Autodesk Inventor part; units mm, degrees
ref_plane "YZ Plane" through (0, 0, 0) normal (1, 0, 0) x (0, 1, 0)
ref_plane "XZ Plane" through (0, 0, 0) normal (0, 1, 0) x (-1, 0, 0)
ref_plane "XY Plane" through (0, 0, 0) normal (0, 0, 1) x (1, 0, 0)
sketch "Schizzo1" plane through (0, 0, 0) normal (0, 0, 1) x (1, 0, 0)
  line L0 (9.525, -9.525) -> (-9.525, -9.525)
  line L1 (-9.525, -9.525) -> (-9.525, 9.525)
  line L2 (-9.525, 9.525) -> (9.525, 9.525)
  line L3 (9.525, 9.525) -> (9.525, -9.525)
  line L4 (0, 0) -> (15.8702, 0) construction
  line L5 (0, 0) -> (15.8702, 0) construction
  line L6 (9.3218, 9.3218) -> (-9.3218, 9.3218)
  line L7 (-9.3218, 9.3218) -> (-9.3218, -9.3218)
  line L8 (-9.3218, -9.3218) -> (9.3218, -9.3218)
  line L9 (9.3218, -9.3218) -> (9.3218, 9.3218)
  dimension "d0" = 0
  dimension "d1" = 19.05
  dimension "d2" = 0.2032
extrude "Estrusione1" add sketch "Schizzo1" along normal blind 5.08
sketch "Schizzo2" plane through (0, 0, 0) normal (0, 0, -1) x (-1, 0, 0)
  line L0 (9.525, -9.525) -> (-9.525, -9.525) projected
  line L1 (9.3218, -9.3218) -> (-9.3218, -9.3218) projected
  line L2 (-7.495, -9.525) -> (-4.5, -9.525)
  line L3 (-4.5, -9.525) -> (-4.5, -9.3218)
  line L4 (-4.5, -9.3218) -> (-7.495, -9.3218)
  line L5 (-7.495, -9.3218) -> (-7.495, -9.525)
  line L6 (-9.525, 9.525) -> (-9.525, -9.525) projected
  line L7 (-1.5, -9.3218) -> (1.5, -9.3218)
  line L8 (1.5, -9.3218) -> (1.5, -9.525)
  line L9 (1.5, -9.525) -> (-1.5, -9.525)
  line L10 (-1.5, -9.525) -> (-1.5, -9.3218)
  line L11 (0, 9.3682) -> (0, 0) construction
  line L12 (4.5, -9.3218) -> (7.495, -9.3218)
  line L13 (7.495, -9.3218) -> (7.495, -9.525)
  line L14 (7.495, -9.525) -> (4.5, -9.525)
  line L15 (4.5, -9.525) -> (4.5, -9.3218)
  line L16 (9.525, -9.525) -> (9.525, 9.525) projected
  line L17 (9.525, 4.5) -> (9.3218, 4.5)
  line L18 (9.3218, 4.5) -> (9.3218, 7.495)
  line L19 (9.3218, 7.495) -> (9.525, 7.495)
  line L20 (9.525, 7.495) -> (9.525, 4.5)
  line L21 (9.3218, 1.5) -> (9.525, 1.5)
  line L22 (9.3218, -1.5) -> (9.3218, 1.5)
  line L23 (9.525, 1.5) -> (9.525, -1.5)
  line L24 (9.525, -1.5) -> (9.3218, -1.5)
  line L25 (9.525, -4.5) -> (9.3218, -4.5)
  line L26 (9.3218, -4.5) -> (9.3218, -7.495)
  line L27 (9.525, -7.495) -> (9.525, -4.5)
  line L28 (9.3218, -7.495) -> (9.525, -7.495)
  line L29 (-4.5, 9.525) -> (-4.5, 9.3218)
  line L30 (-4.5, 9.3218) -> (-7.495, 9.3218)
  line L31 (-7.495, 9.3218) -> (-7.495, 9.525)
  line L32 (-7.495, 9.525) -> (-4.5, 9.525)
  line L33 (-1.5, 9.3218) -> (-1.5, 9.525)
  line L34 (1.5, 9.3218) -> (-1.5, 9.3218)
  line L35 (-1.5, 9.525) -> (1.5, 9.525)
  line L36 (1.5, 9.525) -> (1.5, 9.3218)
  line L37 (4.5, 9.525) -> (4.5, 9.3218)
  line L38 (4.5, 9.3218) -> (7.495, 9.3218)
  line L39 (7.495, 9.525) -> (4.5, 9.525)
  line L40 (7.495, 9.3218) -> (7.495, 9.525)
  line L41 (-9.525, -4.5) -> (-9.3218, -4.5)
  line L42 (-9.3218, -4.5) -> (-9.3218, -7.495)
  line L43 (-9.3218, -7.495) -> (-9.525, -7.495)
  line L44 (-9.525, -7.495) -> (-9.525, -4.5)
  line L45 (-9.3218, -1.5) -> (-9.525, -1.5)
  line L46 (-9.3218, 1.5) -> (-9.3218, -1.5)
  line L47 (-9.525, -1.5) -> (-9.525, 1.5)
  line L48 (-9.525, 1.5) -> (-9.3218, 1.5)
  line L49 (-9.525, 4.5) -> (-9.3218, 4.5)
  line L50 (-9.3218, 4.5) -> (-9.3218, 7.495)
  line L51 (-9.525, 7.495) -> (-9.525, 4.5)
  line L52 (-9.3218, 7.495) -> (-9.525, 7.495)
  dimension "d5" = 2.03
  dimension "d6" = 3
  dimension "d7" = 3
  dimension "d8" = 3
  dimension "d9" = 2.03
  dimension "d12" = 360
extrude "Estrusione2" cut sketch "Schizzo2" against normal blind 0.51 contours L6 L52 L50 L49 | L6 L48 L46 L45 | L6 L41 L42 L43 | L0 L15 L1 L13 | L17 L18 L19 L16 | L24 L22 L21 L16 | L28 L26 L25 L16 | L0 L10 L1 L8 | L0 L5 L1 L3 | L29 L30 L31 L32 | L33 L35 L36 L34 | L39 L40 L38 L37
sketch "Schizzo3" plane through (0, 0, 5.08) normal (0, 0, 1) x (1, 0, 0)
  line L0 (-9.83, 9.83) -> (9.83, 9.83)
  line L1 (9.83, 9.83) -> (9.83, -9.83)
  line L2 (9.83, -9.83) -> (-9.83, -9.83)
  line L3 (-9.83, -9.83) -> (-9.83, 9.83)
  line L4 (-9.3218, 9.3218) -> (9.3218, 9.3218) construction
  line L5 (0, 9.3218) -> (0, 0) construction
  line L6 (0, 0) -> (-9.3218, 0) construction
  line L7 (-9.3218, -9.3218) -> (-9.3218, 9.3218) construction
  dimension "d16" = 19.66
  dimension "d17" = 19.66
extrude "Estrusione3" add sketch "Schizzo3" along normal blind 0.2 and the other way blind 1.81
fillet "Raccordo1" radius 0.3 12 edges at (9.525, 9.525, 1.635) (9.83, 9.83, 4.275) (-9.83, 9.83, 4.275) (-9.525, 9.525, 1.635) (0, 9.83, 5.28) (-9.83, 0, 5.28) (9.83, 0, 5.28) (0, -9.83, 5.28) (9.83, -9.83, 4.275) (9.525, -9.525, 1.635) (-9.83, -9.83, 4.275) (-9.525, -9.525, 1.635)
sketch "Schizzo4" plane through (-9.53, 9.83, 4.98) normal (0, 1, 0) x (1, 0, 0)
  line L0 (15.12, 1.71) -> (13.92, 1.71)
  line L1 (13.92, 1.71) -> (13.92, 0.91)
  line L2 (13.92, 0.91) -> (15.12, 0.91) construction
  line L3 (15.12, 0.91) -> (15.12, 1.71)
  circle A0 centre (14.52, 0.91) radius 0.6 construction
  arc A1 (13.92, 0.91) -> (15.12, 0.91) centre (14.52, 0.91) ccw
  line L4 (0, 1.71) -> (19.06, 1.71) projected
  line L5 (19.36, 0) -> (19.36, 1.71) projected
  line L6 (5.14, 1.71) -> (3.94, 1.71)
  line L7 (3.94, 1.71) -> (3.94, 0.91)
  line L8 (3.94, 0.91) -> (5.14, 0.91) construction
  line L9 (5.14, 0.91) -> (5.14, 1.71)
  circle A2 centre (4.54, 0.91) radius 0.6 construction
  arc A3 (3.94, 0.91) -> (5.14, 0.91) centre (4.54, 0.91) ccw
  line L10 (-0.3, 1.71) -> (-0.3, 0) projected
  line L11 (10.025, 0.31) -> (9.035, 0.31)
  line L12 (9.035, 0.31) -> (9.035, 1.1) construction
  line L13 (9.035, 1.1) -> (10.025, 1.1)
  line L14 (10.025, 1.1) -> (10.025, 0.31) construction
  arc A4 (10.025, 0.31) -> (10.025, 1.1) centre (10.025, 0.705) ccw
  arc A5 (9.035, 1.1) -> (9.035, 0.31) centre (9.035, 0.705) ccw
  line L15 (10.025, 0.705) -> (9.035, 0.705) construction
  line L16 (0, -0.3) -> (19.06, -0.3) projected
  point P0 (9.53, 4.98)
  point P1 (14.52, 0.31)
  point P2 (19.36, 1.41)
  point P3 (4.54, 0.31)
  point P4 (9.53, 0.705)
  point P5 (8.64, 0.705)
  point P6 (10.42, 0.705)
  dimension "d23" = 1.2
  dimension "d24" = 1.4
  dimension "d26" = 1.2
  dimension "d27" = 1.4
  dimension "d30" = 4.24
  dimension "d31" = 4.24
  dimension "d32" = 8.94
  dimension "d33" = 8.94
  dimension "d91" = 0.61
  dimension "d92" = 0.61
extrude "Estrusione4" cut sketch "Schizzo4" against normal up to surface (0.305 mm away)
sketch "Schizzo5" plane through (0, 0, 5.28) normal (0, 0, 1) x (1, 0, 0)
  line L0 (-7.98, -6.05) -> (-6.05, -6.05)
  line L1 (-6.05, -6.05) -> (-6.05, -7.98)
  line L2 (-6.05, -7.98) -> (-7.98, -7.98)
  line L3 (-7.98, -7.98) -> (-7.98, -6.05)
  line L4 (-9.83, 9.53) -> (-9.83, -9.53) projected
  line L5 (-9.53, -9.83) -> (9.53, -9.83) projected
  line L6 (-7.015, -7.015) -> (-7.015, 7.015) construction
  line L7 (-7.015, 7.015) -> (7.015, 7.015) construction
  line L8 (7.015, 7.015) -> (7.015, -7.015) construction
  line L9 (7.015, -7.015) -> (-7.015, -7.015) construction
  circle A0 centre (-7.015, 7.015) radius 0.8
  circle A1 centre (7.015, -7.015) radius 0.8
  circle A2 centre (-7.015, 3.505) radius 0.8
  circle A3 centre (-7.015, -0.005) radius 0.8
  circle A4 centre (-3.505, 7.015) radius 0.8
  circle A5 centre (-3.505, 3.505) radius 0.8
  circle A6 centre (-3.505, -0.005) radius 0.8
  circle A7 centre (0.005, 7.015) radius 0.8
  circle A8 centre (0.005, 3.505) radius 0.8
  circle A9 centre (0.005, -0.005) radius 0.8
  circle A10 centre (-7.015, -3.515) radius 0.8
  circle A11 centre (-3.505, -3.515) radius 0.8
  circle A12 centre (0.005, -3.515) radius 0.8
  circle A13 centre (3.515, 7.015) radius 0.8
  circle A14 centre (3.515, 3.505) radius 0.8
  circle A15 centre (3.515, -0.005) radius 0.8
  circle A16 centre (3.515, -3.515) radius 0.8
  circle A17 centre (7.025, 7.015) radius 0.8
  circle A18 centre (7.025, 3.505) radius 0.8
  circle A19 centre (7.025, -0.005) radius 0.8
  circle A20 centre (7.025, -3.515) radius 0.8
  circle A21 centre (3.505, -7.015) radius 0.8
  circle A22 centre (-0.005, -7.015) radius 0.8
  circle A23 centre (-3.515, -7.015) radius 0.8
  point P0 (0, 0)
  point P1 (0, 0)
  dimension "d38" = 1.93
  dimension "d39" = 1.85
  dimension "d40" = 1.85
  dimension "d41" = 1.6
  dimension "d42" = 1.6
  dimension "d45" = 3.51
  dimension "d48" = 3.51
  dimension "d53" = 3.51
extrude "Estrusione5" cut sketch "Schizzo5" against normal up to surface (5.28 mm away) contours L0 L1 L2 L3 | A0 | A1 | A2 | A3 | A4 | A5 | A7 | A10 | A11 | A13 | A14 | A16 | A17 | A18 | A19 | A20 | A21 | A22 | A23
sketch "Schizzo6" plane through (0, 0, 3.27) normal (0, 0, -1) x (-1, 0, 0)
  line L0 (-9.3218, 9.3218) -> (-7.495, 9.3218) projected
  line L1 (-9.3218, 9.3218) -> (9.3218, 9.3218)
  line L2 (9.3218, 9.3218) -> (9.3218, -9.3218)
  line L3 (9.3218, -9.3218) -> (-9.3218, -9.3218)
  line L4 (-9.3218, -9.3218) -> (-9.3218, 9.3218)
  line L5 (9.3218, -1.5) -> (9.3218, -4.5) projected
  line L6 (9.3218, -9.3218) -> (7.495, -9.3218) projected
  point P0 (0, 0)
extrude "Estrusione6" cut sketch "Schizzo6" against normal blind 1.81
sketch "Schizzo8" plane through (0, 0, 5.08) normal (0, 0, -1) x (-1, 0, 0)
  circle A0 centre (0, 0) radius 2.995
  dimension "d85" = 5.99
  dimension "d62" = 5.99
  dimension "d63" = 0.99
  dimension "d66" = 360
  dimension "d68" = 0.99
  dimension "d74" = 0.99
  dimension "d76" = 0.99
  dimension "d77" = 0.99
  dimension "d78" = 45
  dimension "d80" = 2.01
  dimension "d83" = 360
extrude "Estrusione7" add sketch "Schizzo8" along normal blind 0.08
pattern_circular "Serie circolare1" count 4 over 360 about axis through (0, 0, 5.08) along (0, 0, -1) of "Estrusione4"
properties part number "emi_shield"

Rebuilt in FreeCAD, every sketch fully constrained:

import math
import FreeCAD as App
import Part
import Sketcher

V = App.Vector
Q = App.Units.Quantity


def edges_at(feature, points):
    """Names of the edges that pass closest to the given points."""
    edges = feature.Shape.Edges
    near = lambda p: min(range(len(edges)), key=lambda i: edges[i].distToShape(Part.Vertex(*p))[0])
    return sorted({f"Edge{near(p) + 1}" for p in points})


def add_polygon(sketch, points):
    """Adds a closed chain of lines whose ends are joined by coincident constraints."""
    first, n = sketch.GeometryCount, len(points)
    for a, b in zip(points, points[1:] + points[:1]):
        sketch.addGeometry(Part.LineSegment(App.Vector(*a, 0), App.Vector(*b, 0)), False)
    for i in range(n):
        sketch.addConstraint(Sketcher.Constraint("Coincident", first + i, 2, first + (i + 1) % n, 1))

doc = App.newDocument("Part")
body = doc.addObject("PartDesign::Body", "Body")

sketch1 = body.newObject("Sketcher::SketchObject", "Sketch")
sketch1.AttachmentSupport = (doc.getObject("XY_Plane"), [""])
sketch1.MapMode = "FlatFace"
add_polygon(sketch1, [(-10, -10), (10, -10), (10, 10), (-10, 10)])
add_polygon(sketch1, [(-9, 9), (9, 9), (9, -9), (-9, -9)])
sketch1.addConstraint(Sketcher.Constraint("Horizontal", 0))
sketch1.addConstraint(Sketcher.Constraint("Vertical", 1))
sketch1.addConstraint(Sketcher.Constraint("Horizontal", 2))
sketch1.addConstraint(Sketcher.Constraint("Vertical", 3))
sketch1.addConstraint(Sketcher.Constraint("Horizontal", 4))
sketch1.addConstraint(Sketcher.Constraint("Vertical", 5))
sketch1.addConstraint(Sketcher.Constraint("Horizontal", 6))
sketch1.addConstraint(Sketcher.Constraint("Vertical", 7))
sketch1.addConstraint(Sketcher.Constraint("Symmetric", 0, 2, 2, 2, -1, 1))
sketch1.addConstraint(Sketcher.Constraint("Symmetric", 4, 2, 6, 2, -1, 1))
sketch1.addConstraint(Sketcher.Constraint("Equal", 2, 1))
sketch1.addConstraint(Sketcher.Constraint("Equal", 6, 5))
sketch1.addConstraint(Sketcher.Constraint("DistanceX", 0, 1, 0, 2, Q("0.75 in")))
sketch1.addConstraint(Sketcher.Constraint("DistanceX", 4, 2, 1, 2, Q("0.008 in")))
pad1 = body.newObject("PartDesign::Pad", "Pad")
pad1.Profile = sketch1
pad1.Length = Q("0.2 in")

sketch2 = body.newObject("Sketcher::SketchObject", "Sketch001")
sketch2.AttachmentSupport = (doc.getObject("XY_Plane"), [""])
sketch2.MapMode = "FlatFace"
add_polygon(sketch2, [(9.53, 7.5), (9.53, 4.5), (9.32, 4.5), (9.32, 7.5)])
add_polygon(sketch2, [(9.53, 1.5), (9.53, -1.5), (9.32, -1.5), (9.32, 1.5)])
add_polygon(sketch2, [(9.53, -4.5), (9.53, -7.5), (9.32, -7.5), (9.32, -4.5)])
add_polygon(sketch2, [(-4.5, -9.53), (-7.5, -9.53), (-7.5, -9.32), (-4.5, -9.32)])
add_polygon(sketch2, [(-9.32, 4.5), (-9.53, 4.5), (-9.53, 7.5), (-9.32, 7.5)])
add_polygon(sketch2, [(-9.32, -1.5), (-9.53, -1.5), (-9.53, 1.5), (-9.32, 1.5)])
add_polygon(sketch2, [(-9.32, -7.5), (-9.53, -7.5), (-9.53, -4.5), (-9.32, -4.5)])
add_polygon(sketch2, [(1.5, -9.53), (-1.5, -9.53), (-1.5, -9.32), (1.5, -9.32)])
add_polygon(sketch2, [(7.5, -9.53), (4.5, -9.53), (4.5, -9.32), (7.5, -9.32)])
add_polygon(sketch2, [(4.5, 9.32), (4.5, 9.53), (7.5, 9.53), (7.5, 9.32)])
add_polygon(sketch2, [(1.5, 9.53), (1.5, 9.32), (-1.5, 9.32), (-1.5, 9.53)])
add_polygon(sketch2, [(-7.5, 9.53), (-4.5, 9.53), (-4.5, 9.32), (-7.5, 9.32)])
sketch2.addConstraint(Sketcher.Constraint("Vertical", 0))
sketch2.addConstraint(Sketcher.Constraint("Horizontal", 1))
sketch2.addConstraint(Sketcher.Constraint("Vertical", 2))
sketch2.addConstraint(Sketcher.Constraint("Horizontal", 3))
sketch2.addConstraint(Sketcher.Constraint("Vertical", 4))
sketch2.addConstraint(Sketcher.Constraint("Horizontal", 5))
sketch2.addConstraint(Sketcher.Constraint("Vertical", 6))
sketch2.addConstraint(Sketcher.Constraint("Horizontal", 7))
sketch2.addConstraint(Sketcher.Constraint("Vertical", 8))
sketch2.addConstraint(Sketcher.Constraint("Horizontal", 9))
sketch2.addConstraint(Sketcher.Constraint("Vertical", 10))
sketch2.addConstraint(Sketcher.Constraint("Horizontal", 11))
sketch2.addConstraint(Sketcher.Constraint("Horizontal", 12))
sketch2.addConstraint(Sketcher.Constraint("Vertical", 13))
sketch2.addConstraint(Sketcher.Constraint("Horizontal", 14))
sketch2.addConstraint(Sketcher.Constraint("Vertical", 15))
sketch2.addConstraint(Sketcher.Constraint("Horizontal", 16))
sketch2.addConstraint(Sketcher.Constraint("Vertical", 17))
sketch2.addConstraint(Sketcher.Constraint("Horizontal", 18))
sketch2.addConstraint(Sketcher.Constraint("Vertical", 19))
sketch2.addConstraint(Sketcher.Constraint("Horizontal", 20))
sketch2.addConstraint(Sketcher.Constraint("Vertical", 21))
sketch2.addConstraint(Sketcher.Constraint("Horizontal", 22))
sketch2.addConstraint(Sketcher.Constraint("Vertical", 23))
sketch2.addConstraint(Sketcher.Constraint("Horizontal", 24))
sketch2.addConstraint(Sketcher.Constraint("Vertical", 25))
sketch2.addConstraint(Sketcher.Constraint("Horizontal", 26))
sketch2.addConstraint(Sketcher.Constraint("Vertical", 27))
sketch2.addConstraint(Sketcher.Constraint("Horizontal", 28))
sketch2.addConstraint(Sketcher.Constraint("Vertical", 29))
sketch2.addConstraint(Sketcher.Constraint("Horizontal", 30))
sketch2.addConstraint(Sketcher.Constraint("Vertical", 31))
sketch2.addConstraint(Sketcher.Constraint("Horizontal", 32))
sketch2.addConstraint(Sketcher.Constraint("Vertical", 33))
sketch2.addConstraint(Sketcher.Constraint("Horizontal", 34))
sketch2.addConstraint(Sketcher.Constraint("Vertical", 35))
sketch2.addConstraint(Sketcher.Constraint("Vertical", 36))
sketch2.addConstraint(Sketcher.Constraint("Horizontal", 37))
sketch2.addConstraint(Sketcher.Constraint("Vertical", 38))
sketch2.addConstraint(Sketcher.Constraint("Horizontal", 39))
sketch2.addConstraint(Sketcher.Constraint("Vertical", 40))
sketch2.addConstraint(Sketcher.Constraint("Horizontal", 41))
sketch2.addConstraint(Sketcher.Constraint("Vertical", 42))
sketch2.addConstraint(Sketcher.Constraint("Horizontal", 43))
sketch2.addConstraint(Sketcher.Constraint("Horizontal", 44))
sketch2.addConstraint(Sketcher.Constraint("Vertical", 45))
sketch2.addConstraint(Sketcher.Constraint("Horizontal", 46))
sketch2.addConstraint(Sketcher.Constraint("Vertical", 47))
sketch2.addConstraint(Sketcher.Constraint("Symmetric", 11, 2, 16, 2, -1, 1))
sketch2.addConstraint(Sketcher.Constraint("Symmetric", 9, 2, 18, 2, -1, 1))
sketch2.addConstraint(Sketcher.Constraint("Symmetric", 7, 2, 20, 2, -1, 1))
sketch2.addConstraint(Sketcher.Constraint("Symmetric", 5, 2, 22, 2, -1, 1))
sketch2.addConstraint(Sketcher.Constraint("Symmetric", 3, 2, 24, 2, -1, 1))
sketch2.addConstraint(Sketcher.Constraint("Symmetric", 1, 2, 26, 2, -1, 1))
sketch2.addConstraint(Sketcher.Constraint("Symmetric", 15, 2, 36, 2, -1, 1))
sketch2.addConstraint(Sketcher.Constraint("Symmetric", 13, 2, 38, 2, -1, 1))
sketch2.addConstraint(Sketcher.Constraint("Symmetric", 29, 2, 40, 2, -1, 1))
sketch2.addConstraint(Sketcher.Constraint("Symmetric", 31, 2, 42, 2, -1, 1))
sketch2.addConstraint(Sketcher.Constraint("Symmetric", 32, 2, 44, 2, -1, 1))
sketch2.addConstraint(Sketcher.Constraint("Symmetric", 34, 2, 46, 2, -1, 1))
sketch2.addConstraint(Sketcher.Constraint("Symmetric", 0, 2, 16, 2, -2))
sketch2.addConstraint(Sketcher.Constraint("Symmetric", 2, 2, 18, 2, -2))
sketch2.addConstraint(Sketcher.Constraint("Symmetric", 15, 2, 32, 2, -2))
sketch2.addConstraint(Sketcher.Constraint("Symmetric", 13, 2, 34, 2, -2))
sketch2.addConstraint(Sketcher.Constraint("Horizontal", 5, 2, 20, 2))
sketch2.addConstraint(Sketcher.Constraint("Horizontal", 15, 2, 28, 2))
sketch2.addConstraint(Sketcher.Constraint("Horizontal", 14, 2, 29, 2))
sketch2.addConstraint(Sketcher.Constraint("Vertical", 3, 2, 4, 2))
sketch2.addConstraint(Sketcher.Constraint("Vertical", 2, 2, 5, 2))
sketch2.addConstraint(Sketcher.Constraint("Vertical", 31, 2, 40, 2))
sketch2.addConstraint(Sketcher.Constraint("Equal", 46, 0))
sketch2.addConstraint(Sketcher.Constraint("Equal", 43, 4))
sketch2.addConstraint(Sketcher.Constraint("Equal", 26, 13))
sketch2.addConstraint(Sketcher.Constraint("DistanceX", 28, 2, 28, 1, Q("0.1181 in")))
sketch2.addConstraint(Sketcher.Constraint("DistanceY", 6, 2, 1, 2, Q("0.1181 in")))
sketch2.addConstraint(Sketcher.Constraint("DistanceX", 15, 2, 28, 2, Q("0.1181 in")))
sketch2.addConstraint(Sketcher.Constraint("DistanceX", 1, 2, 1, 1, Q("0.008 in")))
sketch2.addConstraint(Sketcher.Constraint("DistanceY", 12, 2, 9, 2, 2.03))
sketch2.addConstraint(Sketcher.Constraint("DistanceX", 16, 2, 13, 2, 2.03))
sketch2.addConstraint(Sketcher.Constraint("DistanceX", -1, 1, 0, 2, Q("0.375 in")))
pocket1 = body.newObject("PartDesign::Pocket", "Pocket")
pocket1.Profile = sketch2
pocket1.Length = 0.51
pocket1.Reversed = True

sketch3 = body.newObject("Sketcher::SketchObject", "Sketch002")
sketch3.AttachmentSupport = (doc.getObject("XY_Plane"), [""])
sketch3.MapMode = "FlatFace"
sketch3.AttachmentOffset = App.Placement(V(0, 0, 0.2 * 25.4), App.Rotation())
add_polygon(sketch3, [(10, 10), (-10, 10), (-10, -10), (10, -10)])
sketch3.addConstraint(Sketcher.Constraint("Horizontal", 0))
sketch3.addConstraint(Sketcher.Constraint("Vertical", 1))
sketch3.addConstraint(Sketcher.Constraint("Horizontal", 2))
sketch3.addConstraint(Sketcher.Constraint("Vertical", 3))
sketch3.addConstraint(Sketcher.Constraint("Symmetric", 0, 2, 2, 2, -1, 1))
sketch3.addConstraint(Sketcher.Constraint("Equal", 2, 1))
sketch3.addConstraint(Sketcher.Constraint("DistanceX", 0, 2, 0, 1, 19.66))
pad2 = body.newObject("PartDesign::Pad", "Pad001")
pad2.Profile = sketch3
pad2.Type = "TwoLengths"
pad2.Length = 0.2
pad2.Length2 = 1.81
doc.recompute()

fillet = body.newObject("PartDesign::Fillet", "Fillet")
fillet.Base = (pad2, edges_at(pad2, [
    (9.525, 9.525, 1.635),
    (9.83, 9.83, 4.275),
    (-9.83, 9.83, 4.275),
    (-9.525, 9.525, 1.635),
    (0, 9.83, 5.28),
    (-9.83, 0, 5.28),
    (9.83, 0, 5.28),
    (0, -9.83, 5.28),
    (9.83, -9.83, 4.275),
    (9.525, -9.525, 1.635),
    (-9.83, -9.83, 4.275),
    (-9.525, -9.525, 1.635),
]))
fillet.Radius = Q("0.011811 in")

sketch4 = body.newObject("Sketcher::SketchObject", "Sketch003")
sketch4.AttachmentSupport = (doc.getObject("XZ_Plane"), [""])
sketch4.MapMode = "FlatFace"
sketch4.AttachmentOffset = App.Placement(V(0, 0, -0.3870079 * 25.4), App.Rotation())
sketch4.addGeometry(Part.LineSegment(V(5.59, 4.07, 0), V(5.59, 3.27, 0)), False)
sketch4.addGeometry(Part.LineSegment(V(5.59, 3.27, 0), V(4.39, 3.27, 0)), False)
sketch4.addGeometry(Part.LineSegment(V(4.39, 3.27, 0), V(4.39, 4.07, 0)), False)
sketch4.addGeometry(Part.ArcOfCircle(Part.Circle(V(4.99, 4.07, 0), V(0, 0, 1), 0.6), math.radians(0), math.radians(180)), False)
sketch4.addGeometry(Part.LineSegment(V(-4.39, 4.07, 0), V(-4.39, 3.27, 0)), False)
sketch4.addGeometry(Part.LineSegment(V(-4.39, 3.27, 0), V(-5.59, 3.27, 0)), False)
sketch4.addGeometry(Part.LineSegment(V(-5.59, 3.27, 0), V(-5.59, 4.07, 0)), False)
sketch4.addGeometry(Part.ArcOfCircle(Part.Circle(V(-4.99, 4.07, 0), V(0, 0, 1), 0.6), math.radians(0), math.radians(180)), False)
sketch4.addGeometry(Part.LineSegment(V(-0.49, 4.67, 0), V(0.49, 4.67, 0)), False)
sketch4.addGeometry(Part.ArcOfCircle(Part.Circle(V(0.49, 4.28, 0), V(0, 0, 1), 0.39), math.radians(-90), math.radians(90)), False)
sketch4.addGeometry(Part.LineSegment(V(0.49, 3.88, 0), V(-0.49, 3.88, 0)), False)
sketch4.addGeometry(Part.ArcOfCircle(Part.Circle(V(-0.49, 4.28, 0), V(0, 0, 1), 0.4), math.radians(90), math.radians(270)), False)
sketch4.addConstraint(Sketcher.Constraint("Coincident", 0, 2, 1, 1))
sketch4.addConstraint(Sketcher.Constraint("Coincident", 1, 2, 2, 1))
sketch4.addConstraint(Sketcher.Constraint("Tangent", 2, 2, 3, 2))
sketch4.addConstraint(Sketcher.Constraint("Tangent", 3, 1, 0, 1))
sketch4.addConstraint(Sketcher.Constraint("Coincident", 4, 2, 5, 1))
sketch4.addConstraint(Sketcher.Constraint("Coincident", 5, 2, 6, 1))
sketch4.addConstraint(Sketcher.Constraint("Tangent", 6, 2, 7, 2))
sketch4.addConstraint(Sketcher.Constraint("Tangent", 7, 1, 4, 1))
sketch4.addConstraint(Sketcher.Constraint("Tangent", 8, 2, 9, 2))
sketch4.addConstraint(Sketcher.Constraint("Tangent", 9, 1, 10, 1))
sketch4.addConstraint(Sketcher.Constraint("Tangent", 10, 2, 11, 2))
sketch4.addConstraint(Sketcher.Constraint("Tangent", 11, 1, 8, 1))
sketch4.addConstraint(Sketcher.Constraint("Vertical", 0))
sketch4.addConstraint(Sketcher.Constraint("Horizontal", 1))
sketch4.addConstraint(Sketcher.Constraint("Vertical", 2))
sketch4.addConstraint(Sketcher.Constraint("Vertical", 4))
sketch4.addConstraint(Sketcher.Constraint("Horizontal", 5))
sketch4.addConstraint(Sketcher.Constraint("Vertical", 6))
sketch4.addConstraint(Sketcher.Constraint("Horizontal", 8))
sketch4.addConstraint(Sketcher.Constraint("Horizontal", 10))
sketch4.addConstraint(Sketcher.Constraint("Equal", 3, 7))
sketch4.addConstraint(Sketcher.Constraint("Symmetric", 3, 3, 7, 3, -2))
sketch4.addConstraint(Sketcher.Constraint("Horizontal", 1, 2, 4, 2))
sketch4.addConstraint(Sketcher.Constraint("Radius", 3, 0.6))
sketch4.addConstraint(Sketcher.Constraint("Radius", 9, 0.395))
sketch4.addConstraint(Sketcher.Constraint("DistanceY", 1, 2, 8, 2, 1.4))
sketch4.addConstraint(Sketcher.Constraint("DistanceY", 0, 2, 0, 1, Q("0.0315 in")))
sketch4.addConstraint(Sketcher.Constraint("DistanceX", 8, 1, 8, 2, 0.99))
sketch4.addConstraint(Sketcher.Constraint("DistanceX", -1, 1, 9, 3, Q("0.0195 in")))
sketch4.addConstraint(Sketcher.Constraint("DistanceY", -1, 1, 9, 3, Q("0.1683 in")))
sketch4.addConstraint(Sketcher.Constraint("DistanceX", 9, 3, 0, 2, Q("0.2006 in")))
pocket2 = body.newObject("PartDesign::Pocket", "Pocket001")
pocket2.Profile = sketch4
pocket2.Length = Q("0.0120079 in")
pocket2.Reversed = True

sketch5 = body.newObject("Sketcher::SketchObject", "Sketch004")
sketch5.AttachmentSupport = (doc.getObject("XY_Plane"), [""])
sketch5.MapMode = "FlatFace"
sketch5.AttachmentOffset = App.Placement(V(0, 0, 5.28), App.Rotation())
add_polygon(sketch5, [(-6, -6), (-8, -6), (-8, -8), (-6, -8)])
sketch5.addGeometry(Part.Circle(V(-7, 7, 0), V(0, 0, 1), 0.8), False)
sketch5.addGeometry(Part.Circle(V(7, -7, 0), V(0, 0, 1), 0.8), False)
sketch5.addGeometry(Part.Circle(V(-7, 3.5, 0), V(0, 0, 1), 0.8), False)
sketch5.addGeometry(Part.Circle(V(-7, 0, 0), V(0, 0, 1), 0.8), False)
sketch5.addGeometry(Part.Circle(V(-3.5, 7, 0), V(0, 0, 1), 0.8), False)
sketch5.addGeometry(Part.Circle(V(-3.5, 3.5, 0), V(0, 0, 1), 0.8), False)
sketch5.addGeometry(Part.Circle(V(0, 7, 0), V(0, 0, 1), 0.8), False)
sketch5.addGeometry(Part.Circle(V(-7, -3.5, 0), V(0, 0, 1), 0.8), False)
sketch5.addGeometry(Part.Circle(V(-3.5, -3.5, 0), V(0, 0, 1), 0.8), False)
sketch5.addGeometry(Part.Circle(V(3.5, 7, 0), V(0, 0, 1), 0.8), False)
sketch5.addGeometry(Part.Circle(V(3.5, 3.5, 0), V(0, 0, 1), 0.8), False)
sketch5.addGeometry(Part.Circle(V(3.5, -3.5, 0), V(0, 0, 1), 0.8), False)
sketch5.addGeometry(Part.Circle(V(7, 7, 0), V(0, 0, 1), 0.8), False)
sketch5.addGeometry(Part.Circle(V(7, 3.5, 0), V(0, 0, 1), 0.8), False)
sketch5.addGeometry(Part.Circle(V(7, 0, 0), V(0, 0, 1), 0.8), False)
sketch5.addGeometry(Part.Circle(V(7, -3.5, 0), V(0, 0, 1), 0.8), False)
sketch5.addGeometry(Part.Circle(V(3.5, -7, 0), V(0, 0, 1), 0.8), False)
sketch5.addGeometry(Part.Circle(V(0, -7, 0), V(0, 0, 1), 0.8), False)
sketch5.addGeometry(Part.Circle(V(-3.5, -7, 0), V(0, 0, 1), 0.8), False)
sketch5.addConstraint(Sketcher.Constraint("Horizontal", 0))
sketch5.addConstraint(Sketcher.Constraint("Vertical", 1))
sketch5.addConstraint(Sketcher.Constraint("Horizontal", 2))
sketch5.addConstraint(Sketcher.Constraint("Vertical", 3))
sketch5.addConstraint(Sketcher.Constraint("Equal", 4, 5))
sketch5.addConstraint(Sketcher.Constraint("Equal", 5, 6))
sketch5.addConstraint(Sketcher.Constraint("Equal", 6, 7))
sketch5.addConstraint(Sketcher.Constraint("Equal", 7, 8))
sketch5.addConstraint(Sketcher.Constraint("Equal", 8, 9))
sketch5.addConstraint(Sketcher.Constraint("Equal", 9, 10))
sketch5.addConstraint(Sketcher.Constraint("Equal", 10, 11))
sketch5.addConstraint(Sketcher.Constraint("Equal", 11, 12))
sketch5.addConstraint(Sketcher.Constraint("Equal", 12, 13))
sketch5.addConstraint(Sketcher.Constraint("Equal", 13, 14))
sketch5.addConstraint(Sketcher.Constraint("Equal", 14, 15))
sketch5.addConstraint(Sketcher.Constraint("Equal", 15, 16))
sketch5.addConstraint(Sketcher.Constraint("Equal", 16, 17))
sketch5.addConstraint(Sketcher.Constraint("Equal", 17, 18))
sketch5.addConstraint(Sketcher.Constraint("Equal", 18, 19))
sketch5.addConstraint(Sketcher.Constraint("Equal", 19, 20))
sketch5.addConstraint(Sketcher.Constraint("Equal", 20, 21))
sketch5.addConstraint(Sketcher.Constraint("Equal", 21, 22))
sketch5.addConstraint(Sketcher.Constraint("Symmetric", 4, 3, 5, 3, -1, 1))
sketch5.addConstraint(Sketcher.Constraint("Symmetric", 8, 3, 20, 3, -1, 1))
sketch5.addConstraint(Sketcher.Constraint("Symmetric", 10, 3, 21, 3, -1, 1))
sketch5.addConstraint(Sketcher.Constraint("Symmetric", 13, 3, 22, 3, -1, 1))
sketch5.addConstraint(Sketcher.Constraint("Horizontal", 4, 3, 8, 3))
sketch5.addConstraint(Sketcher.Constraint("Horizontal", 6, 3, 9, 3))
sketch5.addConstraint(Sketcher.Constraint("Horizontal", 8, 3, 10, 3))
sketch5.addConstraint(Sketcher.Constraint("Horizontal", 11, 3, 12, 3))
sketch5.addConstraint(Sketcher.Constraint("Horizontal", 10, 3, 13, 3))
sketch5.addConstraint(Sketcher.Constraint("Horizontal", 9, 3, 14, 3))
sketch5.addConstraint(Sketcher.Constraint("Horizontal", 12, 3, 15, 3))
sketch5.addConstraint(Sketcher.Constraint("Horizontal", 13, 3, 16, 3))
sketch5.addConstraint(Sketcher.Constraint("Horizontal", 14, 3, 17, 3))
sketch5.addConstraint(Sketcher.Constraint("Horizontal", 7, 3, 18, 3))
sketch5.addConstraint(Sketcher.Constraint("Horizontal", 15, 3, 19, 3))
sketch5.addConstraint(Sketcher.Constraint("Vertical", 4, 3, 6, 3))
sketch5.addConstraint(Sketcher.Constraint("Vertical", 6, 3, 7, 3))
sketch5.addConstraint(Sketcher.Constraint("Vertical", 8, 3, 9, 3))
sketch5.addConstraint(Sketcher.Constraint("Vertical", 7, 3, 11, 3))
sketch5.addConstraint(Sketcher.Constraint("Vertical", 9, 3, 12, 3))
sketch5.addConstraint(Sketcher.Constraint("Vertical", 13, 3, 14, 3))
sketch5.addConstraint(Sketcher.Constraint("Vertical", 14, 3, 15, 3))
sketch5.addConstraint(Sketcher.Constraint("Vertical", 16, 3, 17, 3))
sketch5.addConstraint(Sketcher.Constraint("Vertical", 17, 3, 18, 3))
sketch5.addConstraint(Sketcher.Constraint("Vertical", 18, 3, 19, 3))
sketch5.addConstraint(Sketcher.Constraint("Equal", 2, 1))
sketch5.addConstraint(Sketcher.Constraint("Diameter", 4, Q("0.063 in")))
sketch5.addConstraint(Sketcher.Constraint("DistanceX", 0, 2, 0, 1, 1.93))
sketch5.addConstraint(Sketcher.Constraint("DistanceY", 6, 3, 4, 3, Q("0.1382 in")))
sketch5.addConstraint(Sketcher.Constraint("DistanceY", 7, 3, 6, 3, Q("0.1382 in")))
sketch5.addConstraint(Sketcher.Constraint("DistanceX", 4, 3, 8, 3, Q("0.1382 in")))
sketch5.addConstraint(Sketcher.Constraint("DistanceX", 8, 3, 10, 3, Q("0.1382 in")))
sketch5.addConstraint(Sketcher.Constraint("DistanceY", 11, 3, 7, 3, Q("0.1382 in")))
sketch5.addConstraint(Sketcher.Constraint("DistanceX", 10, 3, 13, 3, Q("0.1382 in")))
sketch5.addConstraint(Sketcher.Constraint("DistanceX", 13, 3, 16, 3, Q("0.1382 in")))
sketch5.addConstraint(Sketcher.Constraint("DistanceY", -1, 1, 6, 3, Q("0.138 in")))
sketch5.addConstraint(Sketcher.Constraint("DistanceX", 8, 3, -1, 1, Q("0.138 in")))
sketch5.addConstraint(Sketcher.Constraint("DistanceX", 0, 2, 11, 3, Q("0.038 in")))
sketch5.addConstraint(Sketcher.Constraint("DistanceY", 22, 3, 0, 2, Q("0.038 in")))
pocket3 = body.newObject("PartDesign::Pocket", "Pocket002")
pocket3.Profile = sketch5
pocket3.Length = 5.28

sketch6 = body.newObject("Sketcher::SketchObject", "Sketch005")
sketch6.AttachmentSupport = (doc.getObject("XY_Plane"), [""])
sketch6.MapMode = "FlatFace"
sketch6.AttachmentOffset = App.Placement(V(0, 0, 3.27), App.Rotation())
add_polygon(sketch6, [(-9, 9), (9, 9), (9, -9), (-9, -9)])
sketch6.addConstraint(Sketcher.Constraint("Horizontal", 0))
sketch6.addConstraint(Sketcher.Constraint("Vertical", 1))
sketch6.addConstraint(Sketcher.Constraint("Horizontal", 2))
sketch6.addConstraint(Sketcher.Constraint("Vertical", 3))
sketch6.addConstraint(Sketcher.Constraint("Symmetric", 0, 2, 2, 2, -1, 1))
sketch6.addConstraint(Sketcher.Constraint("Equal", 2, 1))
sketch6.addConstraint(Sketcher.Constraint("DistanceX", 0, 1, 0, 2, Q("0.734 in")))
pocket4 = body.newObject("PartDesign::Pocket", "Pocket003")
pocket4.Profile = sketch6
pocket4.Length = 1.81
pocket4.Reversed = True

sketch7 = body.newObject("Sketcher::SketchObject", "Sketch006")
sketch7.AttachmentSupport = (doc.getObject("XY_Plane"), [""])
sketch7.MapMode = "FlatFace"
sketch7.AttachmentOffset = App.Placement(V(0, 0, 0.2 * 25.4), App.Rotation())
sketch7.addGeometry(Part.Circle(V(0, 0, 0), V(0, 0, 1), 3), False)
sketch7.addConstraint(Sketcher.Constraint("Coincident", 0, 3, -1, 1))
sketch7.addConstraint(Sketcher.Constraint("Diameter", 0, 5.99))
pad3 = body.newObject("PartDesign::Pad", "Pad002")
pad3.Profile = sketch7
pad3.Length = 0.08
pad3.Reversed = True
doc.recompute()

polarpattern = body.newObject("PartDesign::PolarPattern", "PolarPattern")
polarpattern.Originals = [pocket2]
polarpattern.Axis = (doc.getObject("Z_Axis"), [""])
polarpattern.Angle = 360
polarpattern.Occurrences = 4
body.Tip = polarpattern

doc.recompute()
